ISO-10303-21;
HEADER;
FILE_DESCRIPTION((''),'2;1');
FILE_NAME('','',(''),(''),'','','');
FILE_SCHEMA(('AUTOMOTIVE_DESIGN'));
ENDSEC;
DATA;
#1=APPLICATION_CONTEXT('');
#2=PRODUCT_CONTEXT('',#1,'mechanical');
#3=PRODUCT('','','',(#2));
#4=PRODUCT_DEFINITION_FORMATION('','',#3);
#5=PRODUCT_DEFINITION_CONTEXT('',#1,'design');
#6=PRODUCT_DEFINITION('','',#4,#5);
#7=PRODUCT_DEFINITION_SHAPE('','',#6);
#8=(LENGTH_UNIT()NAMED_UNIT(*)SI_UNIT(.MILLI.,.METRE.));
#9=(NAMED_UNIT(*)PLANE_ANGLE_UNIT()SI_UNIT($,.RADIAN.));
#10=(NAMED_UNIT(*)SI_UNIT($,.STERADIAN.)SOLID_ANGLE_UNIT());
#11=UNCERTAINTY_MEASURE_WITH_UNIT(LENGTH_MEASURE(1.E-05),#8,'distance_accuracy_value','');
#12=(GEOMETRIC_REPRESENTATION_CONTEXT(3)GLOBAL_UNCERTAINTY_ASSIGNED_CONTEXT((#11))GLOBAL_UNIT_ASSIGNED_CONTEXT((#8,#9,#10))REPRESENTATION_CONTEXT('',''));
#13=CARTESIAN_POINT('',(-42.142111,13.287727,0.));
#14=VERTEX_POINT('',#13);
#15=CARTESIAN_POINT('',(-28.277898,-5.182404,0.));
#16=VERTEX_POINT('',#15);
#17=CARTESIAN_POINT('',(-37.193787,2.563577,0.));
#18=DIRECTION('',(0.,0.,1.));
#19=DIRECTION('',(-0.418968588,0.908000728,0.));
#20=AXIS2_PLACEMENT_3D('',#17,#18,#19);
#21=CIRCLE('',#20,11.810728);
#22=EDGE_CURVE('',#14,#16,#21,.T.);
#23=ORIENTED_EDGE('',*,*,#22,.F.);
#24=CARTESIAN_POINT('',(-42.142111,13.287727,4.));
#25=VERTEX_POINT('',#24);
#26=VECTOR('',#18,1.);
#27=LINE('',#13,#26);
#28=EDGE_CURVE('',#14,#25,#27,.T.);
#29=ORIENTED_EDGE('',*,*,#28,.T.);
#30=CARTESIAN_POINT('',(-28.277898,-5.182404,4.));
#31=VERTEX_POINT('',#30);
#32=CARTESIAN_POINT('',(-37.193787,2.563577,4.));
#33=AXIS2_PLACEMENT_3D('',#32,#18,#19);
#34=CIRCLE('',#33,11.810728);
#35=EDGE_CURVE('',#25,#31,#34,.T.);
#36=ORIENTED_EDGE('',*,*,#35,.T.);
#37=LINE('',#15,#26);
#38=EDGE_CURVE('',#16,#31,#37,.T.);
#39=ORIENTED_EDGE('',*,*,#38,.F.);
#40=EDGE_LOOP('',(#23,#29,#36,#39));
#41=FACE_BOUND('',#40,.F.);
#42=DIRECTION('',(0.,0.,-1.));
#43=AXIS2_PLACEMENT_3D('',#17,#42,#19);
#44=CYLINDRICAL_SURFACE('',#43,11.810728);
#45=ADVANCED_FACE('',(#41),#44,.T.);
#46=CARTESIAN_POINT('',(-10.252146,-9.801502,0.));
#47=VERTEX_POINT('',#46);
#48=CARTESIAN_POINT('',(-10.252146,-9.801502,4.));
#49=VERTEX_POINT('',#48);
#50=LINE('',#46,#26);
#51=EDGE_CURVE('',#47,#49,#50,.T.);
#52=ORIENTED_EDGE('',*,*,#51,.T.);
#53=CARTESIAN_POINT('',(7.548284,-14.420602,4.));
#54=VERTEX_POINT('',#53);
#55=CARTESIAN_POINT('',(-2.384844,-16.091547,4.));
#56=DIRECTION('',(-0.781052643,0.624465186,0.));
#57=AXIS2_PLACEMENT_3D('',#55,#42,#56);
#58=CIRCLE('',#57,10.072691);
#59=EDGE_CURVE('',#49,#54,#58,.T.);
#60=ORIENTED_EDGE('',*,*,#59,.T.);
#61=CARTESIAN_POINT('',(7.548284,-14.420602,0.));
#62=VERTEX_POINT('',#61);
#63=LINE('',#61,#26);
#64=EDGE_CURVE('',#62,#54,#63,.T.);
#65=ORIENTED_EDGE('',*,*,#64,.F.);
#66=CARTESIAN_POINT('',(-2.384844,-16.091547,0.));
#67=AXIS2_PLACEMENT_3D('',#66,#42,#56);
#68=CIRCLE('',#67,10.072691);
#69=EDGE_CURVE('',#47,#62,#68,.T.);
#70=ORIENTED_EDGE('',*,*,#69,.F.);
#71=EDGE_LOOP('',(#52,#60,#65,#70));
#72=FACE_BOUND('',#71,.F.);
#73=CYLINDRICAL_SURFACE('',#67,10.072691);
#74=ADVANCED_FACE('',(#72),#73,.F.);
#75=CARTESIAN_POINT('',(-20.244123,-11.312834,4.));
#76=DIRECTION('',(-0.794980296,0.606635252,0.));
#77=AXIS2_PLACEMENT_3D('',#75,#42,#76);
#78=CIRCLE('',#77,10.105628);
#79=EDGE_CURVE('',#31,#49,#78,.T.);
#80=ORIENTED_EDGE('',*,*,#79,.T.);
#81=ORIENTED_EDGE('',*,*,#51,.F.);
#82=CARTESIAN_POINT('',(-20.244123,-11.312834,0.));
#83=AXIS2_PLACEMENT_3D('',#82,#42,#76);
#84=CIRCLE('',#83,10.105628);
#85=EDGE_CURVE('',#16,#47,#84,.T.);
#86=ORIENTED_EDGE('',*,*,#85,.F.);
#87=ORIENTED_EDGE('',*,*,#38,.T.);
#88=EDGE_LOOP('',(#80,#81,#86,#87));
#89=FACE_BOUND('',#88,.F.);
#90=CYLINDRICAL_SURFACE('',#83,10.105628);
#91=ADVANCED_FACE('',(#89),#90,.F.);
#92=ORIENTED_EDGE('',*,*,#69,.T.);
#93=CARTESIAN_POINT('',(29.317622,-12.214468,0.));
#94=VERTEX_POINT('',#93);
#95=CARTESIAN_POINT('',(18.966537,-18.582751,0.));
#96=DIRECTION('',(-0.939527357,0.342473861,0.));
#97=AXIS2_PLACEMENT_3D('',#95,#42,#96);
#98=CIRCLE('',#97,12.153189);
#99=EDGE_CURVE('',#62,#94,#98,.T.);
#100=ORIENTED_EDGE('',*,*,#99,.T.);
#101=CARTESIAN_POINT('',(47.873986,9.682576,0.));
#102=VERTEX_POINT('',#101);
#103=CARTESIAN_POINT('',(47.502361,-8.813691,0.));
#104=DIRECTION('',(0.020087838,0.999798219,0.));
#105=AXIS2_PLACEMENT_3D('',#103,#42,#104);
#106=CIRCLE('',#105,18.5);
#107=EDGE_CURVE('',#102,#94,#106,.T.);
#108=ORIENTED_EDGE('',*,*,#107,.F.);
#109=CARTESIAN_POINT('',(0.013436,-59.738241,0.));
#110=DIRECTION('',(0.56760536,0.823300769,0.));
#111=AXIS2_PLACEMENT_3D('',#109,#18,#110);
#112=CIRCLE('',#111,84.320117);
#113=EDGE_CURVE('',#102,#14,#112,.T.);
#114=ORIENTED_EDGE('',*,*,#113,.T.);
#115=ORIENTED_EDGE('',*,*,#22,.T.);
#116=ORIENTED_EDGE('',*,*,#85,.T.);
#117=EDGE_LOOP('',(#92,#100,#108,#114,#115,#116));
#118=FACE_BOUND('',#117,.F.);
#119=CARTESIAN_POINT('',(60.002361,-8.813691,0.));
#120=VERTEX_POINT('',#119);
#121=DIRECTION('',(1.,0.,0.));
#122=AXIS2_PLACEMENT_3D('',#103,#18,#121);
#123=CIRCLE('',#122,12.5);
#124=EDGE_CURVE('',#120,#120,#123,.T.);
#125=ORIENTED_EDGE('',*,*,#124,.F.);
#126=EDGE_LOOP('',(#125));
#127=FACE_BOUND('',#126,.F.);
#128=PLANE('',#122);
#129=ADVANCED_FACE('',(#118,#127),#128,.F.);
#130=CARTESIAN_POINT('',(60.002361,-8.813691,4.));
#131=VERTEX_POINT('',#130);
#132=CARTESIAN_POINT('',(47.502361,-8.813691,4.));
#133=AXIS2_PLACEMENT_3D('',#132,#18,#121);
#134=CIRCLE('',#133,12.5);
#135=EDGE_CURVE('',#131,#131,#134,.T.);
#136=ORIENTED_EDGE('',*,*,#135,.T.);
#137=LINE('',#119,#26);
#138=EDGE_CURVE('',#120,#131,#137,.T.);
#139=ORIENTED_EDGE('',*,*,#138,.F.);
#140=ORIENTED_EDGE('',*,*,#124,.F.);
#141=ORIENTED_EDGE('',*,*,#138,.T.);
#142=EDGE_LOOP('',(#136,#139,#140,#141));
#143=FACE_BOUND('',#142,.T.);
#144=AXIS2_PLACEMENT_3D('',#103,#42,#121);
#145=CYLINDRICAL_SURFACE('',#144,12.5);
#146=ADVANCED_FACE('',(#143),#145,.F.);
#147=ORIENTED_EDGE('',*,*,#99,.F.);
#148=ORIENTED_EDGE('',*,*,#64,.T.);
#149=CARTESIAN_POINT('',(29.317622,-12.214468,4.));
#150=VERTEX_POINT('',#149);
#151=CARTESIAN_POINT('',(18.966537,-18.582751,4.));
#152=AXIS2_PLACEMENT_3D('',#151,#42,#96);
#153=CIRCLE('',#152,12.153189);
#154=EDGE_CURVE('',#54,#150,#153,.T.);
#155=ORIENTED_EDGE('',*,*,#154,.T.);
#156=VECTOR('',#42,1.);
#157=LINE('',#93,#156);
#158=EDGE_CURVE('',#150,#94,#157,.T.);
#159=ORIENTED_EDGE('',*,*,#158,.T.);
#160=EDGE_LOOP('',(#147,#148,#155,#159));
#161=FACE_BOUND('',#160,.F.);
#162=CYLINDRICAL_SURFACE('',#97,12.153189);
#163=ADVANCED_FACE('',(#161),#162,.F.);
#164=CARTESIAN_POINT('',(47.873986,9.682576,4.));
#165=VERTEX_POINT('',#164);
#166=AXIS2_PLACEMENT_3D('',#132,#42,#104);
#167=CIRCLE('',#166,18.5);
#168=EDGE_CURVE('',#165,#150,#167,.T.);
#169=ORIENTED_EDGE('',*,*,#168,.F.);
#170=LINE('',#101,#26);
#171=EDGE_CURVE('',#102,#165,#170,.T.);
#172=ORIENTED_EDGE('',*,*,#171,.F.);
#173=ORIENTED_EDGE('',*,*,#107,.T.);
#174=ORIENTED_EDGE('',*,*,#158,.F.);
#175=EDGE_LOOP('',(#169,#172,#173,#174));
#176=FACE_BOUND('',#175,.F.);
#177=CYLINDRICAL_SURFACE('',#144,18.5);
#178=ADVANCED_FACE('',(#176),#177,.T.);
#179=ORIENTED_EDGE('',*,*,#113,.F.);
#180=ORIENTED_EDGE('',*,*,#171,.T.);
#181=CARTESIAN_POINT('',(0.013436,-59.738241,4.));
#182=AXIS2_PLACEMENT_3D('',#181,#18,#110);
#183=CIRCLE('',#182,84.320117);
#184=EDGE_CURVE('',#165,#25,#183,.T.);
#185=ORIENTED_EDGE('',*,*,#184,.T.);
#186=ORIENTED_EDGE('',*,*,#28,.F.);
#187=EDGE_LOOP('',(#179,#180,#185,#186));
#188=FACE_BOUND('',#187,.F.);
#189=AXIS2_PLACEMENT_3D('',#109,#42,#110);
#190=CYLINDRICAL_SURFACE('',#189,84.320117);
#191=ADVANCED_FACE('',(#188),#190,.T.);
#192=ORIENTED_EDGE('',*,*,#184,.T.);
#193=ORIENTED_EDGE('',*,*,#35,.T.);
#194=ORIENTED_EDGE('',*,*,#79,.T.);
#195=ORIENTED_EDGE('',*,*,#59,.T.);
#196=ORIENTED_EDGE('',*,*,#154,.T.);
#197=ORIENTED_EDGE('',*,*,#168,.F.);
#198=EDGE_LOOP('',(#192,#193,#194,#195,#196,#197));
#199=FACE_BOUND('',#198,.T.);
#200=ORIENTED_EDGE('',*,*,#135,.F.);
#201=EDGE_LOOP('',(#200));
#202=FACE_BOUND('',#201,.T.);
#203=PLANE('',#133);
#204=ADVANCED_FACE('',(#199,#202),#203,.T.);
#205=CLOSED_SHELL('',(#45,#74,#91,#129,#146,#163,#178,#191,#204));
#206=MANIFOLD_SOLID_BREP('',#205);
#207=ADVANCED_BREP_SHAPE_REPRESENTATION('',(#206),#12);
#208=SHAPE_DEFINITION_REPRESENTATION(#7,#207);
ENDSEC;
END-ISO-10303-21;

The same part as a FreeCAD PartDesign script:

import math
import FreeCAD as App
import Part
import Sketcher
from FreeCAD import Vector

doc = App.newDocument("Part")
body = doc.addObject("PartDesign::Body", "Body")

sketch1 = body.newObject("Sketcher::SketchObject", "Sketch")
sketch1.AttachmentSupport = (doc.getObject("XY_Plane"), [""])
sketch1.MapMode = "FlatFace"
sketch1.addGeometry(Part.Circle(Vector(48, -9, 0), Vector(0, 0, 1), 18), False)
sketch1.addGeometry(Part.Circle(Vector(48, -9, 0), Vector(0, 0, 1), 12), False)
sketch1.addConstraint(Sketcher.Constraint("Coincident", 1, 3, 0, 3))
sketch1.addConstraint(Sketcher.Constraint("Diameter", 0, 37.0))
sketch1.addConstraint(Sketcher.Constraint("Diameter", 1, 25.0))
sketch1.addConstraint(Sketcher.Constraint("DistanceX", -1, 1, 0, 3, 47.502361))
sketch1.addConstraint(Sketcher.Constraint("DistanceY", 0, 3, -1, 1, 8.813691))
pad1 = body.newObject("PartDesign::Pad", "Pad")
pad1.Profile = sketch1
pad1.Length = 4

sketch2 = body.newObject("Sketcher::SketchObject", "Sketch001")
sketch2.AttachmentSupport = (doc.getObject("XY_Plane"), [""])
sketch2.MapMode = "FlatFace"
sketch2.addGeometry(Part.ArcOfCircle(Part.Circle(Vector(57, -15, 0), Vector(0, 0, 1), 26), math.radians(111), math.radians(185)), False)
sketch2.addGeometry(Part.ArcOfCircle(Part.Circle(Vector(0, -60, 0), Vector(0, 0, 1), 84), math.radians(55), math.radians(120)), False)
sketch2.addGeometry(Part.ArcOfCircle(Part.Circle(Vector(-37, 3, 0), Vector(0, 0, 1), 12), math.radians(115), math.radians(319)), False)
sketch2.addGeometry(Part.ArcOfCircle(Part.Circle(Vector(-20, -11, 0), Vector(0, 0, 1), 10), math.radians(9), math.radians(143)), False)
sketch2.addGeometry(Part.ArcOfCircle(Part.Circle(Vector(-2, -16, 0), Vector(0, 0, 1), 10), math.radians(10), math.radians(141)), False)
sketch2.addGeometry(Part.ArcOfCircle(Part.Circle(Vector(19, -19, 0), Vector(0, 0, 1), 12), math.radians(6), math.radians(160)), False)
sketch2.addConstraint(Sketcher.Constraint("Coincident", 0, 1, 1, 1))
sketch2.addConstraint(Sketcher.Constraint("Coincident", 1, 2, 2, 1))
sketch2.addConstraint(Sketcher.Constraint("Coincident", 2, 2, 3, 2))
sketch2.addConstraint(Sketcher.Constraint("Coincident", 3, 1, 4, 2))
sketch2.addConstraint(Sketcher.Constraint("Coincident", 4, 1, 5, 2))
sketch2.addConstraint(Sketcher.Constraint("Coincident", 5, 1, 0, 2))
sketch2.addConstraint(Sketcher.Constraint("Radius", 0, 26.325311))
sketch2.addConstraint(Sketcher.Constraint("Radius", 2, 11.810728))
sketch2.addConstraint(Sketcher.Constraint("Radius", 3, 10.105628))
sketch2.addConstraint(Sketcher.Constraint("Radius", 4, 10.072691))
sketch2.addConstraint(Sketcher.Constraint("Radius", 5, 12.153189))
sketch2.addConstraint(Sketcher.Constraint("Radius", 1, 84.320117))
sketch2.addConstraint(Sketcher.Constraint("DistanceX", 2, 2, -1, 1, 28.277898))
sketch2.addConstraint(Sketcher.Constraint("DistanceX", 1, 3, 5, 3, 18.953102))
sketch2.addConstraint(Sketcher.Constraint("DistanceX", 3, 1, 4, 3, 7.867302))
sketch2.addConstraint(Sketcher.Constraint("DistanceY", 3, 1, 2, 2, 4.619098))
sketch2.addConstraint(Sketcher.Constraint("DistanceY", 4, 1, 3, 1, 4.6191))
sketch2.addConstraint(Sketcher.Constraint("DistanceX", -1, 1, 0, 3, 57.267918))
sketch2.addConstraint(Sketcher.Constraint("DistanceY", 0, 3, -1, 1, 14.909618))
sketch2.addConstraint(Sketcher.Constraint("DistanceY", 1, 3, -1, 1, 59.738241))
sketch2.addConstraint(Sketcher.Constraint("DistanceY", 5, 3, -1, 1, 18.582751))
sketch2.addConstraint(Sketcher.Constraint("DistanceX", 1, 2, -1, 1, 42.142111))
sketch2.addConstraint(Sketcher.Constraint("DistanceY", 5, 1, -1, 1, 17.271139))
sketch2.addConstraint(Sketcher.Constraint("DistanceY", 1, 3, 2, 3, 62.301818))
pad2 = body.newObject("PartDesign::Pad", "Pad001")
pad2.Profile = sketch2
pad2.Length = 4

doc.recompute()
